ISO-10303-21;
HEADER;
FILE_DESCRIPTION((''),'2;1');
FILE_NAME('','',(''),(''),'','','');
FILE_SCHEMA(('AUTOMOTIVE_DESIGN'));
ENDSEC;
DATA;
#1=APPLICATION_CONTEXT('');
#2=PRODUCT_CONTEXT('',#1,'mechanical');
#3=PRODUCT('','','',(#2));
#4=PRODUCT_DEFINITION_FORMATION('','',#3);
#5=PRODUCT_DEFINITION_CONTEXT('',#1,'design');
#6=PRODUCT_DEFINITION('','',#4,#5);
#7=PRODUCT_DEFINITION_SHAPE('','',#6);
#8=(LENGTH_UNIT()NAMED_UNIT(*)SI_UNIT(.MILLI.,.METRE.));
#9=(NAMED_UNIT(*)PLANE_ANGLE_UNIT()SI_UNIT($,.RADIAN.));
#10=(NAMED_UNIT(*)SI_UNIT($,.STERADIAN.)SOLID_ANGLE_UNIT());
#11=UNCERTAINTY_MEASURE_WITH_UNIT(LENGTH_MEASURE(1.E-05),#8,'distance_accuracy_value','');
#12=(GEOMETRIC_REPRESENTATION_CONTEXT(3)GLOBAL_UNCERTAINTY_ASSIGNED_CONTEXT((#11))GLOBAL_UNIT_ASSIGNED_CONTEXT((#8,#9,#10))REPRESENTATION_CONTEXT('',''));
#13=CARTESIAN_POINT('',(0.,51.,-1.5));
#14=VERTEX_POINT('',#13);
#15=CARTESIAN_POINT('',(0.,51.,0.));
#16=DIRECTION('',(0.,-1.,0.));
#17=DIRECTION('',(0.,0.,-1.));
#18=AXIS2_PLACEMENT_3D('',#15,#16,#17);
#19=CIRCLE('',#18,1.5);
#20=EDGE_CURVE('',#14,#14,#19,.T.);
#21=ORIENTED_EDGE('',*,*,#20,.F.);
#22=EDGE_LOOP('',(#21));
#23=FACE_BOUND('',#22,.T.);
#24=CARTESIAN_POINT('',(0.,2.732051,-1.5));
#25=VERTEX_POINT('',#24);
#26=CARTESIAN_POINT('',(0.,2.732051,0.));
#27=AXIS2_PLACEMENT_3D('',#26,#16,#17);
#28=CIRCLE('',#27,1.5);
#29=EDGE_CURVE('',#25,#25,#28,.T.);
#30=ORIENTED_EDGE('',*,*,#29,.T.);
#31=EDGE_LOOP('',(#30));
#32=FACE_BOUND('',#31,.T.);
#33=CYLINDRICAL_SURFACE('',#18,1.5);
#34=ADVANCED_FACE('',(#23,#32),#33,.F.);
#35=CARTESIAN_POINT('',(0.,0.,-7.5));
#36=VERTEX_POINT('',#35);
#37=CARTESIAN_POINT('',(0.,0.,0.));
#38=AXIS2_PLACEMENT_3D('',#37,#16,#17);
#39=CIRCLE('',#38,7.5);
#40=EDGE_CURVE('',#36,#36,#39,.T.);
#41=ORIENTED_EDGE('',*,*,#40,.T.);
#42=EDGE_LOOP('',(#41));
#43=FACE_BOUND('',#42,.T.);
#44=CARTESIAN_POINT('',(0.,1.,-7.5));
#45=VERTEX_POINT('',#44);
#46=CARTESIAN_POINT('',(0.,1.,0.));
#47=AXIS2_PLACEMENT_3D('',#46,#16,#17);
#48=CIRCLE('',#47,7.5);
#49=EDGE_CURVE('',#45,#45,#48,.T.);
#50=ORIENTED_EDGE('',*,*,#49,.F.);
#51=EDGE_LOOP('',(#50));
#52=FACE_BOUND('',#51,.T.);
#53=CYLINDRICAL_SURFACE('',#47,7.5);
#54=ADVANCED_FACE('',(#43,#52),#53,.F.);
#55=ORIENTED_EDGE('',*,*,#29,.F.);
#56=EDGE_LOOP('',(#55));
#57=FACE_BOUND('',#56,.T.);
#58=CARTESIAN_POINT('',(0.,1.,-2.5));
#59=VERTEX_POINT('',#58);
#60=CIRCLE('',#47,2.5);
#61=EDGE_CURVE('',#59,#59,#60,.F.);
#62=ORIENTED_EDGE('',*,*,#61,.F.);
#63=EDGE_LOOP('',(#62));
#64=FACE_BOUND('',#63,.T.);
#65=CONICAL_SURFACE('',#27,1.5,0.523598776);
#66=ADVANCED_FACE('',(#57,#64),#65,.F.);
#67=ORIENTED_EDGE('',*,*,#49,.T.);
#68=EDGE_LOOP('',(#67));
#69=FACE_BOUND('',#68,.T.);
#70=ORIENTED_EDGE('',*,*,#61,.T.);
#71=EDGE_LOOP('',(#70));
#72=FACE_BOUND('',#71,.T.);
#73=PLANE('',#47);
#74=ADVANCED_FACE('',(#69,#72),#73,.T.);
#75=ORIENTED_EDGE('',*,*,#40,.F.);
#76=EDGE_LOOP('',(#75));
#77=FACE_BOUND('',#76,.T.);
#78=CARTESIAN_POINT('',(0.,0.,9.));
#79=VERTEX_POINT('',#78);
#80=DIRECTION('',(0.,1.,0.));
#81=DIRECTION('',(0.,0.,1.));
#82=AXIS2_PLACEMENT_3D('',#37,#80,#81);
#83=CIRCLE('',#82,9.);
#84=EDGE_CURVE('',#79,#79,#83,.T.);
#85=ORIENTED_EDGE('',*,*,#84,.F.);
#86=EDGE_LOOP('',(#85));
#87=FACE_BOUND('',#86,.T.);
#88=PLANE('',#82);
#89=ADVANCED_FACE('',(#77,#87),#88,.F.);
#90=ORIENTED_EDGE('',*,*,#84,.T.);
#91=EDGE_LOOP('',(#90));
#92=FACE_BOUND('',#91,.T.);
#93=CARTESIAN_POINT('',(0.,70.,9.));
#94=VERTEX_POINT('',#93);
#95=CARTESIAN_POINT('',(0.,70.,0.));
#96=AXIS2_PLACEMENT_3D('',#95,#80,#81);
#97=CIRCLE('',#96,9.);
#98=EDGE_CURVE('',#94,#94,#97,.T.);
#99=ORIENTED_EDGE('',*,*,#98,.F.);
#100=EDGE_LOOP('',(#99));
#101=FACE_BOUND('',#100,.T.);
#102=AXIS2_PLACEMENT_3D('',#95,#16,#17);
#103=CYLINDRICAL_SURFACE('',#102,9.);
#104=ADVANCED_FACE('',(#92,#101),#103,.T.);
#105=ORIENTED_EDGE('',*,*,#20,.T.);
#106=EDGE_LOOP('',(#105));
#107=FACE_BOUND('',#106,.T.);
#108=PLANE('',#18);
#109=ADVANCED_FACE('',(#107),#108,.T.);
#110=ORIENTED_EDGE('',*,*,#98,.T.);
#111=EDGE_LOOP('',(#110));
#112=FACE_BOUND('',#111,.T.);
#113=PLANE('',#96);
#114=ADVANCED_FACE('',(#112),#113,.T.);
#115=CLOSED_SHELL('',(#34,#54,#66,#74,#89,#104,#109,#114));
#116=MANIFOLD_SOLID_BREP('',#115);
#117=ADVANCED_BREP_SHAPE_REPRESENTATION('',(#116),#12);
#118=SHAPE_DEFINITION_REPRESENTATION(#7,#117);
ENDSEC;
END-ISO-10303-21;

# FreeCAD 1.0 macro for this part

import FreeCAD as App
import Part
import Sketcher
from FreeCAD import Vector
Q = App.Units.Quantity


def edges_at(feature, points):
    """Names of the edges that pass closest to the given points."""
    edges = feature.Shape.Edges
    near = lambda p: min(range(len(edges)), key=lambda i: edges[i].distToShape(Part.Vertex(*p))[0])
    return sorted({f"Edge{near(p) + 1}" for p in points})

doc = App.newDocument("Part")
body = doc.addObject("PartDesign::Body", "Body")

# Sketch on XZ plane
sketch1 = doc.addObject("Sketcher::SketchObject", "Sketch")
body.addObject(sketch1)
sketch1.AttachmentSupport = (doc.XZ_Plane, [""])
sketch1.MapMode = "FlatFace"
sketch1.addGeometry(Part.Circle(Vector(0, 0, 0), Vector(0, 0, 1), 9), False)
sketch1.addConstraint(Sketcher.Constraint("Coincident", 0, 3, -1, 1))
sketch1.addConstraint(Sketcher.Constraint("Diameter", 0, Q("18 mm")))
pad1 = doc.addObject("PartDesign::Pad", "Pad")
body.addObject(pad1)
pad1.Profile = sketch1
pad1.Length = 70
pad1.Reversed = True

# Sketch on XZ plane
sketch2 = doc.addObject("Sketcher::SketchObject", "Sketch001")
body.addObject(sketch2)
sketch2.AttachmentSupport = (doc.XZ_Plane, [""])
sketch2.MapMode = "FlatFace"
sketch2.addGeometry(Part.Circle(Vector(0, 0, 0), Vector(0, 0, 1), 7.5), False)
sketch2.addConstraint(Sketcher.Constraint("Coincident", 0, 3, -1, 1))
sketch2.addConstraint(Sketcher.Constraint("Diameter", 0, Q("15 mm")))
pocket1 = doc.addObject("PartDesign::Pocket", "Pocket")
body.addObject(pocket1)
pocket1.Profile = sketch2
pocket1.Length = 1

# Sketch on XZ plane
sketch3 = doc.addObject("Sketcher::SketchObject", "Sketch002")
body.addObject(sketch3)
sketch3.AttachmentSupport = (doc.XZ_Plane, [""])
sketch3.MapMode = "FlatFace"
sketch3.AttachmentOffset = App.Placement(Vector(0, 0, -1), App.Rotation())
sketch3.addGeometry(Part.Circle(Vector(0, 0, 0), Vector(0, 0, 1), 1.5), False)
sketch3.addConstraint(Sketcher.Constraint("Coincident", 0, 3, -1, 1))
sketch3.addConstraint(Sketcher.Constraint("Diameter", 0, Q("3 mm")))
pocket2 = doc.addObject("PartDesign::Pocket", "Pocket001")
body.addObject(pocket2)
pocket2.Profile = sketch3
pocket2.Length = 50
doc.recompute()

chamfer = doc.addObject("PartDesign::Chamfer", "Chamfer")
body.addObject(chamfer)
chamfer.Base = (pocket2, edges_at(pocket2, [(-1.5, 1, 0)]))
chamfer.ChamferType = "Two distances"
chamfer.Size = 1
chamfer.Size2 = 1.732051

doc.recompute()
